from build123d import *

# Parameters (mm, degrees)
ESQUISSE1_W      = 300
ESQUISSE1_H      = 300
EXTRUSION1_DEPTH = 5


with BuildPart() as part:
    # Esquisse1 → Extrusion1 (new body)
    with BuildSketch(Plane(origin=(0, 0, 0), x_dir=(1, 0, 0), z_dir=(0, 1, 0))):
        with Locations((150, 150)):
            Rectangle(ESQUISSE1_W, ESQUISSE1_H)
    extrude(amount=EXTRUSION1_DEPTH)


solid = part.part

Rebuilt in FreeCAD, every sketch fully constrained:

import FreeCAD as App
import Part
import Sketcher
Q = App.Units.Quantity

doc = App.newDocument("Part")
params = doc.addObject("Spreadsheet::Sheet", "Params")
for row, (alias, value) in enumerate([
    ("sketch1_width", "300 mm"),
    ("pad1_length", "5 mm"),
], start=1):
    params.set(f"A{row}", alias)
    params.set(f"B{row}", "=" + value)
    params.setAlias(f"B{row}", alias)

body = doc.addObject("PartDesign::Body", "Body")

sketch1 = body.newObject("Sketcher::SketchObject", "Sketch")
sketch1.AttachmentSupport = (doc.getObject("XZ_Plane"), [""])
sketch1.MapMode = "FlatFace"
sketch1.addGeometry([
    Part.LineSegment(App.Vector(0, -300, 0), App.Vector(0, 0, 0)),
    Part.LineSegment(App.Vector(0, 0, 0), App.Vector(300, 0, 0)),
    Part.LineSegment(App.Vector(300, 0, 0), App.Vector(300, -300, 0)),
    Part.LineSegment(App.Vector(300, -300, 0), App.Vector(0, -300, 0)),
], False)
sketch1.addConstraint([
    Sketcher.Constraint("Coincident", 0, 2, 1, 1),
    Sketcher.Constraint("Coincident", 1, 2, 2, 1),
    Sketcher.Constraint("Coincident", 2, 2, 3, 1),
    Sketcher.Constraint("Coincident", 3, 2, 0, 1),
    Sketcher.Constraint("Vertical", 0),
    Sketcher.Constraint("Horizontal", 1),
    Sketcher.Constraint("Vertical", 2),
    Sketcher.Constraint("Horizontal", 3),
    Sketcher.Constraint("Coincident", 0, 2, -1, 1),
    Sketcher.Constraint("Equal", 3, 0),
    Sketcher.Constraint("DistanceX", 1, 1, 1, 2, Q("300 mm")),
])
sketch1.setExpression("Constraints[10]", "Params.sketch1_width")
pad1 = body.newObject("PartDesign::Pad", "Pad")
pad1.Profile = sketch1
pad1.setExpression("Length", "Params.pad1_length")
pad1.Reversed = True

doc.recompute()
